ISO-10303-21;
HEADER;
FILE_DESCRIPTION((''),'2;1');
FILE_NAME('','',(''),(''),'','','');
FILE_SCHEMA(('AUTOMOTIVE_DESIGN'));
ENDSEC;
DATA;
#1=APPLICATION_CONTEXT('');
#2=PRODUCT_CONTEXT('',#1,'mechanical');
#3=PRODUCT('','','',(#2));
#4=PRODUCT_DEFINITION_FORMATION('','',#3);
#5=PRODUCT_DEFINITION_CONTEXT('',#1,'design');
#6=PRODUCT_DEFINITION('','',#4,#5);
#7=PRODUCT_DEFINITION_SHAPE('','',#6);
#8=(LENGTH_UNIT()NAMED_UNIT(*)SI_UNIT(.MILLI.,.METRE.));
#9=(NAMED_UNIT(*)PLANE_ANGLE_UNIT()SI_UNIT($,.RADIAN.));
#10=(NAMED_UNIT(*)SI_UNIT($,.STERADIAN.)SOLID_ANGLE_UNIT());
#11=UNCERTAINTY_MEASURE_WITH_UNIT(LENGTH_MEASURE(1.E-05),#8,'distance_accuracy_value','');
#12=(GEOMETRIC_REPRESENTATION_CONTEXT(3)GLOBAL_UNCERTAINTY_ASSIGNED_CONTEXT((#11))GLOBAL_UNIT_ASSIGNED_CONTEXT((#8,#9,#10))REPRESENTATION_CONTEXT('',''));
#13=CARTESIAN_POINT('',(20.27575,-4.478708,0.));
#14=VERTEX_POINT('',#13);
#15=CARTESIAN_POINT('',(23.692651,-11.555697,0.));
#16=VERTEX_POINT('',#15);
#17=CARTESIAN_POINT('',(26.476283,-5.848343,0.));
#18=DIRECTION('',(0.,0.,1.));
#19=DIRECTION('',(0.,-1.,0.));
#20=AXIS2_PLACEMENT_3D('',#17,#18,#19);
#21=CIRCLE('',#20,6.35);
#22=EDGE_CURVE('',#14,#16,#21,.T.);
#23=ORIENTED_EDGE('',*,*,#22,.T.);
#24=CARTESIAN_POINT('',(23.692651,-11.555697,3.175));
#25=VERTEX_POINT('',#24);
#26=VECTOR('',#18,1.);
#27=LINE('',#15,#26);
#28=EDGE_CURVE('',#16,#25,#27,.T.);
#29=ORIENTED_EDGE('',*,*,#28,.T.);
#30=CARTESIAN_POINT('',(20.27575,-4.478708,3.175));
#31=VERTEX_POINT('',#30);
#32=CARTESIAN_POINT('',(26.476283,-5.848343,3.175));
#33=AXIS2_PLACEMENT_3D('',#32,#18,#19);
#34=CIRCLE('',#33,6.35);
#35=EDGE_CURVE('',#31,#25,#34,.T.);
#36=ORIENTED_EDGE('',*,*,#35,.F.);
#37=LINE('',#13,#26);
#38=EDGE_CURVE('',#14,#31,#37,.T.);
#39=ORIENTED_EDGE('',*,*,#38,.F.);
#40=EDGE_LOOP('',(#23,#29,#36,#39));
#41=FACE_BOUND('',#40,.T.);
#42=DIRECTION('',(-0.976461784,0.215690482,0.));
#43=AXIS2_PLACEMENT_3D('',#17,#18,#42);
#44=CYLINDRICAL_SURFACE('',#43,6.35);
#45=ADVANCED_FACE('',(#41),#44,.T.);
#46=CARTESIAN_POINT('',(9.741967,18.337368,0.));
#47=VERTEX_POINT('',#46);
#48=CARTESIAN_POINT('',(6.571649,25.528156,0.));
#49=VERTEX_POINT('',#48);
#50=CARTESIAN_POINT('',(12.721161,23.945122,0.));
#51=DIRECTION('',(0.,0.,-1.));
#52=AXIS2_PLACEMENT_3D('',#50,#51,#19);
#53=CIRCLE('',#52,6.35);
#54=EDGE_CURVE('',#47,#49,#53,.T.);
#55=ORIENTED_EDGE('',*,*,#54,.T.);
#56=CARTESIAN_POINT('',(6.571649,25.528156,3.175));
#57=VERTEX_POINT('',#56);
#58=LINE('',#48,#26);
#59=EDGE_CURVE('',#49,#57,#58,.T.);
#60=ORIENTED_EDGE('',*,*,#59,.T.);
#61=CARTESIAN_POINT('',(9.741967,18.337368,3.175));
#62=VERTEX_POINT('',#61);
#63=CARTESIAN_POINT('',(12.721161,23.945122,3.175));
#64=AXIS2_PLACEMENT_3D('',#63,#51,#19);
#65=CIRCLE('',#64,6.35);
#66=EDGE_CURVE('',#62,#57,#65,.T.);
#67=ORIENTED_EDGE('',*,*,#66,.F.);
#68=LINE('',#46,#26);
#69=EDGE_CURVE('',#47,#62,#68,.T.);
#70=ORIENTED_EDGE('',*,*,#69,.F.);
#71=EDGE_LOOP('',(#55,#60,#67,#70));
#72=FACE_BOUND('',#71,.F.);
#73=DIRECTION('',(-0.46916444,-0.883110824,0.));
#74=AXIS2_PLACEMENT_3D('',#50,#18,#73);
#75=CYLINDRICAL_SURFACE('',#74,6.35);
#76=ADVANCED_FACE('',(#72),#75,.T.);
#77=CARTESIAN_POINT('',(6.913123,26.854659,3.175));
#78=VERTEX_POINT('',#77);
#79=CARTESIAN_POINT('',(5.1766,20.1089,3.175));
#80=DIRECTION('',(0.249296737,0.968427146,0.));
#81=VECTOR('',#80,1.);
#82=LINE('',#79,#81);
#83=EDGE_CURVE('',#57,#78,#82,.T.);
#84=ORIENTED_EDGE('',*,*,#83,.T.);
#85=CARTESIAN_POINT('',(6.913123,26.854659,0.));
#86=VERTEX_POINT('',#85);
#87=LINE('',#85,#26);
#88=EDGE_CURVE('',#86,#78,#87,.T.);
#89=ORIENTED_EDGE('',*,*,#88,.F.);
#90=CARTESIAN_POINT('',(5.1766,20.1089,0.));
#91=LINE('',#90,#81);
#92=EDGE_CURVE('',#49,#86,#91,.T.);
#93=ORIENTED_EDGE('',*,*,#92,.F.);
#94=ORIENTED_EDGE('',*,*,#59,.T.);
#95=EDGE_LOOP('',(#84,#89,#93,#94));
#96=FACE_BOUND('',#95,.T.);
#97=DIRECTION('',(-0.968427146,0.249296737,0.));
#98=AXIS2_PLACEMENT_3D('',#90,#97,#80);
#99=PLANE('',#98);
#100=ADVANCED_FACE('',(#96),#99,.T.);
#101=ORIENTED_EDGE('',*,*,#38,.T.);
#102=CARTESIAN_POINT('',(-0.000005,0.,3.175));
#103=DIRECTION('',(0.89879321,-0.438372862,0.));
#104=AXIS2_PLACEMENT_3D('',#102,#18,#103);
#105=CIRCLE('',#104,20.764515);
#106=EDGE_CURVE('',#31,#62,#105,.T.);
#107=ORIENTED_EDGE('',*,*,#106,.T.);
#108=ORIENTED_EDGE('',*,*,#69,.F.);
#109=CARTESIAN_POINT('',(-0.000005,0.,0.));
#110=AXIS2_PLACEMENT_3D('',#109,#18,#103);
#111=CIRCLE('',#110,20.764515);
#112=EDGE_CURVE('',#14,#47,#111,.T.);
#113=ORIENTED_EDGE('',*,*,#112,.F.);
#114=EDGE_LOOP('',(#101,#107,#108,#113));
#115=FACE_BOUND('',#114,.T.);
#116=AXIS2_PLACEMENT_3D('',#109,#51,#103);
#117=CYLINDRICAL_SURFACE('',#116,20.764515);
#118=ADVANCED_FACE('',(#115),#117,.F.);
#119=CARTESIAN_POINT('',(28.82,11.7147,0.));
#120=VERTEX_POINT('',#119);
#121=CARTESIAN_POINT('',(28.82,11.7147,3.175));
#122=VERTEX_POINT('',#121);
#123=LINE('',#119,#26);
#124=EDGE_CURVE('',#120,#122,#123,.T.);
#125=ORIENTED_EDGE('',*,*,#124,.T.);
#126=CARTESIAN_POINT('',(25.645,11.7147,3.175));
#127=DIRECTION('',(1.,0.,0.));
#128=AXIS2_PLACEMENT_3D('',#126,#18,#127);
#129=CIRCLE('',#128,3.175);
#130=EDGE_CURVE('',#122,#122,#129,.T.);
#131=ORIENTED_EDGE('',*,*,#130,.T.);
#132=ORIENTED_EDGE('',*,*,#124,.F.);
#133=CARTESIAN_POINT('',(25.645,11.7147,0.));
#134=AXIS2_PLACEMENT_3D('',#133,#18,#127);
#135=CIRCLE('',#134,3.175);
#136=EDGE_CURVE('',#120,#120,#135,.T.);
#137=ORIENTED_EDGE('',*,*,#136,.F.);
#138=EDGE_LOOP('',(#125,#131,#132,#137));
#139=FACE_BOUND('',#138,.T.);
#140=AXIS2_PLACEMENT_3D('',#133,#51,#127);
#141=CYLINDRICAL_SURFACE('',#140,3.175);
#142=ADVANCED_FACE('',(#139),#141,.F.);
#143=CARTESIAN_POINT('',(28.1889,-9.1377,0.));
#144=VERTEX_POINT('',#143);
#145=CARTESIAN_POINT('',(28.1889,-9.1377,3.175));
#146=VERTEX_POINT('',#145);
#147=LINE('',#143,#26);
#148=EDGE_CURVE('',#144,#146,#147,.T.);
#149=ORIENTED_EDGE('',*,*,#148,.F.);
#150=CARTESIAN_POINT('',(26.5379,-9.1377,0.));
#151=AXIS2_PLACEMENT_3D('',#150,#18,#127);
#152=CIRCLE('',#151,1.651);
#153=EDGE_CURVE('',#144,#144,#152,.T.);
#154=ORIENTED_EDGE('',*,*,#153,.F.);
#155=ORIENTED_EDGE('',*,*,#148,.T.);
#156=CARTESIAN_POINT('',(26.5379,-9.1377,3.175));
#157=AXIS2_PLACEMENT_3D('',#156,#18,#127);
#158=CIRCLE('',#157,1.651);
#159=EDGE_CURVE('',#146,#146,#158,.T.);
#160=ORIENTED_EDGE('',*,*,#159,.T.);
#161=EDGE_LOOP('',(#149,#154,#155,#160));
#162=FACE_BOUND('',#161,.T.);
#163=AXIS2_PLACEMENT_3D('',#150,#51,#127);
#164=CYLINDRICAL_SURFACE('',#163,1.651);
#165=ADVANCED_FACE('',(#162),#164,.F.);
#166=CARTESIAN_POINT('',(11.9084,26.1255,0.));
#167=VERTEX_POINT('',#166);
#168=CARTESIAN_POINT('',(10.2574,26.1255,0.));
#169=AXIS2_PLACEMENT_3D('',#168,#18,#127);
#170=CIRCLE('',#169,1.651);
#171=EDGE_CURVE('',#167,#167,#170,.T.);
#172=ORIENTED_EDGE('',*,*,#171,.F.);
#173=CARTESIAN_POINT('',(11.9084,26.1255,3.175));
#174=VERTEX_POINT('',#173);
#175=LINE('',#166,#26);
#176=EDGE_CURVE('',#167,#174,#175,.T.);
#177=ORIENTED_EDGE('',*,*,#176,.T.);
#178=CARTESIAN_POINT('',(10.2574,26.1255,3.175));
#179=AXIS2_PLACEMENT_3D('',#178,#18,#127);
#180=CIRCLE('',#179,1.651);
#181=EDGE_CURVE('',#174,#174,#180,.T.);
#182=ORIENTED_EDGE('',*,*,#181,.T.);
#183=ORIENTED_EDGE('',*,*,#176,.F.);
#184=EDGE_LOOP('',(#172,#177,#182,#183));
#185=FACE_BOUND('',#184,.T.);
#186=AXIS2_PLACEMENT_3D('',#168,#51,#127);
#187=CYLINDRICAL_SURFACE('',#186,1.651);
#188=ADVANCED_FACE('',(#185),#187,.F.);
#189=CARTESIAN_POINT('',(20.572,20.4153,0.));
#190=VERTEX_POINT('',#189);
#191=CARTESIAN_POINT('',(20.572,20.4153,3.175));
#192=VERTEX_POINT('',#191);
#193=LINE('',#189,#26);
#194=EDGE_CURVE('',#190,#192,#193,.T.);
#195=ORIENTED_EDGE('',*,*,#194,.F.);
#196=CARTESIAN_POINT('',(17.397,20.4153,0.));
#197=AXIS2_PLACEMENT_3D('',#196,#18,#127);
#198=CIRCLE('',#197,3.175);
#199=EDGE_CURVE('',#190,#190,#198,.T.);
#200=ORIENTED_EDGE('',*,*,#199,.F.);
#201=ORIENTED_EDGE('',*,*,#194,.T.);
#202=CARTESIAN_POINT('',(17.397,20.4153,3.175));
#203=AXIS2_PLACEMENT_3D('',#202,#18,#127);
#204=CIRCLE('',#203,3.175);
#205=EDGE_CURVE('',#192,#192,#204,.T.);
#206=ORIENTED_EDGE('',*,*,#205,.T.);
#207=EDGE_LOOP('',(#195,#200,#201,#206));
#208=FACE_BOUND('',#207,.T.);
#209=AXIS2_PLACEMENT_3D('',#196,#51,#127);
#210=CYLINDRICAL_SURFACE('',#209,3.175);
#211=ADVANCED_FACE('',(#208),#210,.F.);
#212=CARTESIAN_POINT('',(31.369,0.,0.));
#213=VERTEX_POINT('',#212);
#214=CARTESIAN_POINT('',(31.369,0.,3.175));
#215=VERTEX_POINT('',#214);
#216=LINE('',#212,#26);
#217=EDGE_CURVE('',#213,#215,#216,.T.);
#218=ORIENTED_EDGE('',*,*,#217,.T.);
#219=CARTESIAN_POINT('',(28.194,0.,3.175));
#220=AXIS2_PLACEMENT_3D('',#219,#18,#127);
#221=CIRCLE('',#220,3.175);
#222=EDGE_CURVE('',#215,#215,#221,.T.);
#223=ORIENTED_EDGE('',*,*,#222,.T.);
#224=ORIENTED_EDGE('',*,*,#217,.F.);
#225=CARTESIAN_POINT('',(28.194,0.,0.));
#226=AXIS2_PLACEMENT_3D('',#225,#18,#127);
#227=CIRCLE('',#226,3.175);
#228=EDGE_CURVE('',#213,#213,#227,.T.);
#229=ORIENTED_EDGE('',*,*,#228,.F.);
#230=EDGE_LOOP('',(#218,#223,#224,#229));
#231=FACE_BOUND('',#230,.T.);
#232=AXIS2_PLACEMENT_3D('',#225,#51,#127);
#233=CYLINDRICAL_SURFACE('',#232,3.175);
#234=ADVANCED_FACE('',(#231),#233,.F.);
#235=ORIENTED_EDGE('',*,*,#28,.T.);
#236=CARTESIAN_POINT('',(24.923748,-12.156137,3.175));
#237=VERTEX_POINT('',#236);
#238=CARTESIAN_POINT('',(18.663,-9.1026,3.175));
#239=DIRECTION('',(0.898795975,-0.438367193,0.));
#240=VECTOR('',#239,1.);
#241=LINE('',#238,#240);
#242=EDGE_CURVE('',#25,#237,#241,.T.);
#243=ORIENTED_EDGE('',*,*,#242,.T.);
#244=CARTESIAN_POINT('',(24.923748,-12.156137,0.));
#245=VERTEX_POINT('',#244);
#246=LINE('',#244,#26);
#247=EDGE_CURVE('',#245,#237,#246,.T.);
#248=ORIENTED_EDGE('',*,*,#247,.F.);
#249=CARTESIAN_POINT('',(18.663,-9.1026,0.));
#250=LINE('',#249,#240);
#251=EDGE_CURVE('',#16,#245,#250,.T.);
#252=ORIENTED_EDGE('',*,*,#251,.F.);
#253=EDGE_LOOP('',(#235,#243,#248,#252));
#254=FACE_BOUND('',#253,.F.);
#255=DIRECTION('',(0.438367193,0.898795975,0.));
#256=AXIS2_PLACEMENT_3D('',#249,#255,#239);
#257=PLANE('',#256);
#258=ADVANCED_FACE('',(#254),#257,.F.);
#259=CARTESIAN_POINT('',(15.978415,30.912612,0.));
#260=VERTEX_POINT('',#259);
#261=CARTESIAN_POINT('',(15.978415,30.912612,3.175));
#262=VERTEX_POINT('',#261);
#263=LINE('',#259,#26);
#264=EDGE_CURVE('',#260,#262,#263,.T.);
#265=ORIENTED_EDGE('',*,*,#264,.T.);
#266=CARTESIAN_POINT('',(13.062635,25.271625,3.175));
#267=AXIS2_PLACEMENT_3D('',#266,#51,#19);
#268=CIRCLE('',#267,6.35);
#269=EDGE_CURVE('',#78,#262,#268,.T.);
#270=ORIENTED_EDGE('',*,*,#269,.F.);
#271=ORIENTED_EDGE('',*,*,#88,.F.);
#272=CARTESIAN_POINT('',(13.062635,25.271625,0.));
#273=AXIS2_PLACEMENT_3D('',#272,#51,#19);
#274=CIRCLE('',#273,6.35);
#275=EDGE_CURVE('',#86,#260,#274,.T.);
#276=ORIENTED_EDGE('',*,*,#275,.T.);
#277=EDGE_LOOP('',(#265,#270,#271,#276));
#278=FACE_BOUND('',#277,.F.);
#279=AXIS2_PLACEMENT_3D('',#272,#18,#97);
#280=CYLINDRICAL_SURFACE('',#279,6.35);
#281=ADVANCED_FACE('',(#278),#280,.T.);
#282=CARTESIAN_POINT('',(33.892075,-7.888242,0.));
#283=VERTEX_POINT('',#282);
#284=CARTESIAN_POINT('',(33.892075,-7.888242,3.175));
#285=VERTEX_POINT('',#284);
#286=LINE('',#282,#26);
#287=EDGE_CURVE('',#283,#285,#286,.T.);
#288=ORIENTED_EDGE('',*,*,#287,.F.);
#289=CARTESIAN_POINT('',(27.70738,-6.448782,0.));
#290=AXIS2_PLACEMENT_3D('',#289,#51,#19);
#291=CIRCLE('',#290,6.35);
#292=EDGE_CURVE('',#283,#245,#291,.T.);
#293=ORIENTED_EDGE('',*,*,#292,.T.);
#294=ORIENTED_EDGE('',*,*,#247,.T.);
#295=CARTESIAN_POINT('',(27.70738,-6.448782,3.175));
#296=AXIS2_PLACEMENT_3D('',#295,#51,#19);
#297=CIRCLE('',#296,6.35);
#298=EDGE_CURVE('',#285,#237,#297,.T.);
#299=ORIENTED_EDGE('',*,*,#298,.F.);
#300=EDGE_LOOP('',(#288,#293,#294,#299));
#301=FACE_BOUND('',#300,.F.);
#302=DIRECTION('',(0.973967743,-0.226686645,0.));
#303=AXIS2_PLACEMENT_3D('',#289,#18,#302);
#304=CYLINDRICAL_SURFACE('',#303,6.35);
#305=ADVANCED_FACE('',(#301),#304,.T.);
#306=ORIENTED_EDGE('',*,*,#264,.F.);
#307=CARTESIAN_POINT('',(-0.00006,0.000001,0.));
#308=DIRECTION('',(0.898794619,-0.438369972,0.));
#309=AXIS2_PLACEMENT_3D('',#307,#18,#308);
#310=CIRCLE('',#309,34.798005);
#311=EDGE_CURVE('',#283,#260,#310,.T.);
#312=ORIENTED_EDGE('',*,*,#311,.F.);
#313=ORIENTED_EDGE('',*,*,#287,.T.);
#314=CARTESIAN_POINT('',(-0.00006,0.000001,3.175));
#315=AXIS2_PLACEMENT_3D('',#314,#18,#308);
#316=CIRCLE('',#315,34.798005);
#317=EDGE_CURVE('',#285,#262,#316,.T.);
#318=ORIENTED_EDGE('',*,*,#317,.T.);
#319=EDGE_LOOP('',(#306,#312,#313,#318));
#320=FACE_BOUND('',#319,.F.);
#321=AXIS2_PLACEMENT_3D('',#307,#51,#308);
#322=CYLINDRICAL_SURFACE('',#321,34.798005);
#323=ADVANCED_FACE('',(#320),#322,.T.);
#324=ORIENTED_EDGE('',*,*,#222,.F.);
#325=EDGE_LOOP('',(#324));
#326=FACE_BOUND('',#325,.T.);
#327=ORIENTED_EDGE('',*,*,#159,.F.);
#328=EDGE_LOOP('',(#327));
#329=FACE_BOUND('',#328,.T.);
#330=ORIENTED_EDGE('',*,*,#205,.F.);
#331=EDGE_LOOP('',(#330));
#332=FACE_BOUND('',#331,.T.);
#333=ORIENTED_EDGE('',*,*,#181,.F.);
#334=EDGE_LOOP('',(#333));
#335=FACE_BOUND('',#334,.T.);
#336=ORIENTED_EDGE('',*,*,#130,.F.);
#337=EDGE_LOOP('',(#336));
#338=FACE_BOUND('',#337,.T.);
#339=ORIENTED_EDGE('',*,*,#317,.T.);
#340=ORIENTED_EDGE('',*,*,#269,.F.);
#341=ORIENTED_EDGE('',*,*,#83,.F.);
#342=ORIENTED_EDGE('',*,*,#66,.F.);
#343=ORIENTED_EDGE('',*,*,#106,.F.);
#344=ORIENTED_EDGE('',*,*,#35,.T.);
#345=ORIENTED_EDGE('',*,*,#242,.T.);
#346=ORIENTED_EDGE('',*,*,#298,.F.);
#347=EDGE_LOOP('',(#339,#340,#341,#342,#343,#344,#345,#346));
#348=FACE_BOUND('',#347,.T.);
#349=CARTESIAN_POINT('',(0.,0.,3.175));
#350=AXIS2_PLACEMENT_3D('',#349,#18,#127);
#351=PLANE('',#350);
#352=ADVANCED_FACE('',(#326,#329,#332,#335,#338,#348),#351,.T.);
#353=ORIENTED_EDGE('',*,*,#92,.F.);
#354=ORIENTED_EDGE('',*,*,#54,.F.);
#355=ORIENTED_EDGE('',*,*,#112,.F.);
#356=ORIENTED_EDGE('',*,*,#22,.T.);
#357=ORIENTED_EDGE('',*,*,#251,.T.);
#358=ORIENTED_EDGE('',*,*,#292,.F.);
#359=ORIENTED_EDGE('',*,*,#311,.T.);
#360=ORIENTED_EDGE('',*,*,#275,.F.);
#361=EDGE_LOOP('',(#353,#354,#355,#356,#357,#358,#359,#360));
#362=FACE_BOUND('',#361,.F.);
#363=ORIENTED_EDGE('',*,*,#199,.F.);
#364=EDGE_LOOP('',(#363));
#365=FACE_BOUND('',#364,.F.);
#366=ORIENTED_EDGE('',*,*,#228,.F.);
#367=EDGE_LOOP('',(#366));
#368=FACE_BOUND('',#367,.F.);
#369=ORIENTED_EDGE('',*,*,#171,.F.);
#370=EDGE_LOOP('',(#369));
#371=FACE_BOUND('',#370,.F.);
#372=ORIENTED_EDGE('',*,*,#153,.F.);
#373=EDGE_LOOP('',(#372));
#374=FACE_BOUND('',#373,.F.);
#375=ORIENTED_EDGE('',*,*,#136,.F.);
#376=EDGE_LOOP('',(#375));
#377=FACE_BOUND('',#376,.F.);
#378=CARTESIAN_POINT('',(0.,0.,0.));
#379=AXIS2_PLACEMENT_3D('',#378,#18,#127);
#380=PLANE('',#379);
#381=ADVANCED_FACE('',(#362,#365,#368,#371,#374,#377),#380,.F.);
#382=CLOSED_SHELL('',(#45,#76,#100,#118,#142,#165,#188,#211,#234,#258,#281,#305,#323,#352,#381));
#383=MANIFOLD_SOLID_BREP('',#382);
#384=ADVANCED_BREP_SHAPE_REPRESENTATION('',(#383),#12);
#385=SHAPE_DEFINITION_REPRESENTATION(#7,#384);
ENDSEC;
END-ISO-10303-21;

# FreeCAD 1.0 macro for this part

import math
import FreeCAD as App
import Part
import Sketcher

V = App.Vector
Q = App.Units.Quantity


def edges_at(feature, points):
    """Names of the edges that pass closest to the given points."""
    edges = feature.Shape.Edges
    near = lambda p: min(range(len(edges)), key=lambda i: edges[i].distToShape(Part.Vertex(*p))[0])
    return sorted({f"Edge{near(p) + 1}" for p in points})

doc = App.newDocument("Part")
body = doc.addObject("PartDesign::Body", "Body")

sketch1 = doc.addObject("Sketcher::SketchObject", "Sketch")
body.addObject(sketch1)
sketch1.AttachmentSupport = (doc.XY_Plane, [""])
sketch1.MapMode = "FlatFace"
sketch1.addGeometry(Part.ArcOfCircle(Part.Circle(V(0, 0, 0), V(0, 0, 1), 20.8), math.radians(-26), math.radians(76)), False)
sketch1.addGeometry(Part.LineSegment(V(18.7, -9.1, 0), V(31.3, -15.3, 0)), False)
sketch1.addGeometry(Part.ArcOfCircle(Part.Circle(V(0, 0, 0), V(0, 0, 1), 34.8), math.radians(-26), math.radians(76)), False)
sketch1.addGeometry(Part.LineSegment(V(8.7, 33.7, 0), V(5.2, 20.1, 0)), False)
sketch1.addGeometry(Part.Circle(V(26.5, -9.1, 0), V(0, 0, 1), 1.7), False)
sketch1.addGeometry(Part.Circle(V(28.2, 0, 0), V(0, 0, 1), 3.2), False)
sketch1.addGeometry(Part.Circle(V(17.4, 20.4, 0), V(0, 0, 1), 3.2), False)
sketch1.addGeometry(Part.Circle(V(10.3, 26.1, 0), V(0, 0, 1), 1.7), False)
sketch1.addGeometry(Part.Circle(V(25.6, 11.7, 0), V(0, 0, 1), 3.2), False)
sketch1.addConstraint(Sketcher.Constraint("Coincident", 0, 1, 1, 1))
sketch1.addConstraint(Sketcher.Constraint("Coincident", 1, 2, 2, 1))
sketch1.addConstraint(Sketcher.Constraint("Coincident", 2, 2, 3, 1))
sketch1.addConstraint(Sketcher.Constraint("Coincident", 3, 2, 0, 2))
sketch1.addConstraint(Sketcher.Constraint("Coincident", 0, 3, -1, 1))
sketch1.addConstraint(Sketcher.Constraint("Coincident", 2, 3, -1, 1))
sketch1.addConstraint(Sketcher.Constraint("Equal", 5, 6))
sketch1.addConstraint(Sketcher.Constraint("Equal", 4, 7))
sketch1.addConstraint(Sketcher.Constraint("Equal", 6, 8))
sketch1.addConstraint(Sketcher.Constraint("PointOnObject", 5, 3, -1))
sketch1.addConstraint(Sketcher.Constraint("Diameter", 4, Q("0.13 in")))
sketch1.addConstraint(Sketcher.Constraint("Diameter", 5, Q("0.25 in")))
sketch1.addConstraint(Sketcher.Constraint("Radius", 2, Q("1.37 in")))
sketch1.addConstraint(Sketcher.Constraint("Radius", 0, Q("0.8175 in")))
sketch1.addConstraint(Sketcher.Constraint("DistanceX", -1, 1, 5, 3, Q("1.11 in")))
sketch1.addConstraint(Sketcher.Constraint("Angle", 1, Q("-25.9997 deg")))
sketch1.addConstraint(Sketcher.Constraint("DistanceY", 6, 3, 2, 2, Q("0.523 in")))
sketch1.addConstraint(Sketcher.Constraint("DistanceX", -1, 1, 4, 3, Q("1.0448 in")))
sketch1.addConstraint(Sketcher.Constraint("DistanceY", -1, 1, 8, 3, Q("0.4612 in")))
sketch1.addConstraint(Sketcher.Constraint("DistanceX", -1, 1, 3, 2, Q("0.2038 in")))
sketch1.addConstraint(Sketcher.Constraint("DistanceY", 4, 3, 6, 3, Q("1.1635 in")))
sketch1.addConstraint(Sketcher.Constraint("DistanceY", 6, 3, 7, 3, Q("0.2248 in")))
sketch1.addConstraint(Sketcher.Constraint("DistanceX", 7, 3, 8, 3, Q("0.6058 in")))
sketch1.addConstraint(Sketcher.Constraint("DistanceX", 8, 3, 1, 2, Q("0.2217 in")))
sketch1.addConstraint(Sketcher.Constraint("DistanceX", 2, 2, 7, 3, Q("0.0623 in")))
sketch1.addConstraint(Sketcher.Constraint("DistanceY", 4, 3, -1, 1, Q("9.1377 mm")))
sketch1.addConstraint(Sketcher.Constraint("DistanceX", -1, 1, 6, 3, Q("17.397 mm")))
pad1 = doc.addObject("PartDesign::Pad", "Pad")
body.addObject(pad1)
pad1.Profile = sketch1
pad1.Length = Q("0.125 in")
doc.recompute()

fillet = doc.addObject("PartDesign::Fillet", "Fillet")
body.addObject(fillet)
fillet.Base = (pad1, edges_at(pad1, [
    (8.675, 33.699, 1.587),
    (5.177, 20.109, 1.587),
    (18.663, -9.103, 1.587),
    (31.276, -15.254, 1.587),
]))
fillet.Radius = Q("0.25 in")

doc.recompute()
